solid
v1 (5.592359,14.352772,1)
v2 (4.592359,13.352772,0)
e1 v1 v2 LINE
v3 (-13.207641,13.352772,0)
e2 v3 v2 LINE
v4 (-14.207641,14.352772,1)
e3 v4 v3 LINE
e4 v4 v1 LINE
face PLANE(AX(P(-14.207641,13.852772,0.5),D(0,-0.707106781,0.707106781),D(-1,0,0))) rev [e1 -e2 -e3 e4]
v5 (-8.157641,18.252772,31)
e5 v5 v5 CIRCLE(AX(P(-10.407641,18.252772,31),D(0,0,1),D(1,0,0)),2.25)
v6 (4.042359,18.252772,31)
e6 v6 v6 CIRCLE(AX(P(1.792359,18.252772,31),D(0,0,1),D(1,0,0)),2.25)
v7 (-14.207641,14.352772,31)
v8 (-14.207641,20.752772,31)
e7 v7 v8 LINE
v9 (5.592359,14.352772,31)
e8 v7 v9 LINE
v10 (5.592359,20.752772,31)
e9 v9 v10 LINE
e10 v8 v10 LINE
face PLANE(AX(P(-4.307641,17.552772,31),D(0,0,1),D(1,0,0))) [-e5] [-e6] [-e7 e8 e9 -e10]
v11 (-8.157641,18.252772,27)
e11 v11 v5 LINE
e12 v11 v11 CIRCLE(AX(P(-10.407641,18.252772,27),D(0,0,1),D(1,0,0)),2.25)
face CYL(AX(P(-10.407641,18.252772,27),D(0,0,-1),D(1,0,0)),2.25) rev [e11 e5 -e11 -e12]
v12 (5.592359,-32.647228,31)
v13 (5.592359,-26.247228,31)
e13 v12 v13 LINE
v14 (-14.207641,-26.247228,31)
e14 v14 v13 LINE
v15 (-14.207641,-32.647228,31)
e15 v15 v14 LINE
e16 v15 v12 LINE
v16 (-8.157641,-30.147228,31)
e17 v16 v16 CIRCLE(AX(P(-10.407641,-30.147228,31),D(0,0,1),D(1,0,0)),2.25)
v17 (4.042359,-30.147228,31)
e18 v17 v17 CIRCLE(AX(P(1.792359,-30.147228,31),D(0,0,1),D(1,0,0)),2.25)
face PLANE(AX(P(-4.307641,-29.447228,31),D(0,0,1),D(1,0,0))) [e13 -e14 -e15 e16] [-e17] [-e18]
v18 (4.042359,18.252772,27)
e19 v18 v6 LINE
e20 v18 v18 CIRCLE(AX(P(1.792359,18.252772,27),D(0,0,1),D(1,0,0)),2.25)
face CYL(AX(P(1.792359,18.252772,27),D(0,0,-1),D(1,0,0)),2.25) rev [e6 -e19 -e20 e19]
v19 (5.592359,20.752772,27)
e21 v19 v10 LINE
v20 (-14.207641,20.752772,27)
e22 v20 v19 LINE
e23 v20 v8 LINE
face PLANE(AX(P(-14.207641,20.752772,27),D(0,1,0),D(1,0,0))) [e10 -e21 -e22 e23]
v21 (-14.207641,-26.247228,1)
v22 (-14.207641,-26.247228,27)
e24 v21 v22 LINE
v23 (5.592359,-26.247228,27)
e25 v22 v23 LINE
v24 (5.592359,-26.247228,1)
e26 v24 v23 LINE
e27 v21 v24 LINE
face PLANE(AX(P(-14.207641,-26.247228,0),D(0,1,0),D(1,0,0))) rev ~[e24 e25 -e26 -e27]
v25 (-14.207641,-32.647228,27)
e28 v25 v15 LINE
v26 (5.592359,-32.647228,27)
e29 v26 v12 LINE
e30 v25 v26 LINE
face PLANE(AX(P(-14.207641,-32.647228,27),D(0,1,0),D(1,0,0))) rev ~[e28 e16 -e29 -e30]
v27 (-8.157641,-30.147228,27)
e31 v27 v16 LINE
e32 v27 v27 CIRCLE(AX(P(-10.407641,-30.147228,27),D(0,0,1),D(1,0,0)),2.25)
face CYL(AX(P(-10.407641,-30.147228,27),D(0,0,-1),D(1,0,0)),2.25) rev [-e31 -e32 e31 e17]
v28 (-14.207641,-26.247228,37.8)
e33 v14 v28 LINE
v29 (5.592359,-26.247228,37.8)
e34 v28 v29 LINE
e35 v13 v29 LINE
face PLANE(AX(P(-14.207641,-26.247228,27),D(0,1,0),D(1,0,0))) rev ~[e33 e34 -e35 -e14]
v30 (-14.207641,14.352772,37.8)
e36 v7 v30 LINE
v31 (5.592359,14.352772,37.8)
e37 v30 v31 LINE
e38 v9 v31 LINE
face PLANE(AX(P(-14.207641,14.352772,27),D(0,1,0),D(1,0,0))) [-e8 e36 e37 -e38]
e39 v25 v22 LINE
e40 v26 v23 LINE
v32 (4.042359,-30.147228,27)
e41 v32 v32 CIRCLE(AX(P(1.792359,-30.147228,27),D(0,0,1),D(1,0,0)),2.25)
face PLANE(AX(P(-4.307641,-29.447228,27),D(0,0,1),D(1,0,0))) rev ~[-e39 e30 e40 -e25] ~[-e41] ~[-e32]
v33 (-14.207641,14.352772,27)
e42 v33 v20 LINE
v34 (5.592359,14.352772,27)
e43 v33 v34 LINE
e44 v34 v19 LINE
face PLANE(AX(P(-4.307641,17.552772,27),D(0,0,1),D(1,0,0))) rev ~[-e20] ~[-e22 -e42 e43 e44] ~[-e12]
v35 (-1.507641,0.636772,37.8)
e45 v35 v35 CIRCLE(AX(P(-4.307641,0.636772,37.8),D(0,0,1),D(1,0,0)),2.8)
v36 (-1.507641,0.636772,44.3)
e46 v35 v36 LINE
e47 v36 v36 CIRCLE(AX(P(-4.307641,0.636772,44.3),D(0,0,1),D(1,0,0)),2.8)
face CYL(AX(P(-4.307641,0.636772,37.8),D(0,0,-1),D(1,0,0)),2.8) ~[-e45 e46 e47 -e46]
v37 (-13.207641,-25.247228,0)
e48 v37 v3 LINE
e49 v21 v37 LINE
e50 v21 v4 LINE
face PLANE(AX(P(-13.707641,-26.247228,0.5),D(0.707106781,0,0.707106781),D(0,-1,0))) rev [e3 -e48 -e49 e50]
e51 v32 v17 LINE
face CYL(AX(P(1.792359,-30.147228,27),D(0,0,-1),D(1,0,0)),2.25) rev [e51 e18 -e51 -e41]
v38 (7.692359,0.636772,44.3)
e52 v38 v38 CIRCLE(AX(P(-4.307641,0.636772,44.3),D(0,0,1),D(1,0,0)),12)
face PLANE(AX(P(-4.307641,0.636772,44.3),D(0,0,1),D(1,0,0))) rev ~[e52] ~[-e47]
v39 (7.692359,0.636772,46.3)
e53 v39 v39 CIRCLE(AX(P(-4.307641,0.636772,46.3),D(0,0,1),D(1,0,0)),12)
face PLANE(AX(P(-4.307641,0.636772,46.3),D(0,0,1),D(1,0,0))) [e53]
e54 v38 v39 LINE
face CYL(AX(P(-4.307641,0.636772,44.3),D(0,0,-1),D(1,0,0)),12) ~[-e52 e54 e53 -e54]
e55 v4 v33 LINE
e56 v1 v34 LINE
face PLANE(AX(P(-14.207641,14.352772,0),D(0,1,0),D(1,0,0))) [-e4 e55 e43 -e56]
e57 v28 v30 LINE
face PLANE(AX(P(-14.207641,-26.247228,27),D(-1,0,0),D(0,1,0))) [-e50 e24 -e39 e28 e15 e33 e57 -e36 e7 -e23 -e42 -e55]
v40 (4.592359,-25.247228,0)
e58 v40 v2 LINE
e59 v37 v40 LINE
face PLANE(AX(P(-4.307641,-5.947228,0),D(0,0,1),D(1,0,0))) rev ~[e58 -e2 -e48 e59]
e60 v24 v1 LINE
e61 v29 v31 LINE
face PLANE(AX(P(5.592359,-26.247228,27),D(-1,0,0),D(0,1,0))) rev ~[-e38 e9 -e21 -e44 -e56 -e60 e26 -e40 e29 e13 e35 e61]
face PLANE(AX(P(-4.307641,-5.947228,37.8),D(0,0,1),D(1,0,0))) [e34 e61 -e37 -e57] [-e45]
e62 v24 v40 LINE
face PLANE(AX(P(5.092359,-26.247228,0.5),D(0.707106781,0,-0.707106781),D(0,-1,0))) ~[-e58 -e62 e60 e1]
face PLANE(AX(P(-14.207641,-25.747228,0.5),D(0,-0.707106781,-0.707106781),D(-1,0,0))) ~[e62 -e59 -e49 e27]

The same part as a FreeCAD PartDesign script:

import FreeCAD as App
import Part
import Sketcher
from FreeCAD import Vector


def edges_at(feature, points):
    """Names of the edges that pass closest to the given points."""
    edges = feature.Shape.Edges
    near = lambda p: min(range(len(edges)), key=lambda i: edges[i].distToShape(Part.Vertex(*p))[0])
    return sorted({f"Edge{near(p) + 1}" for p in points})


def add_polygon(sketch, points):
    """Adds a closed chain of lines whose ends are joined by coincident constraints."""
    first, n = sketch.GeometryCount, len(points)
    for a, b in zip(points, points[1:] + points[:1]):
        sketch.addGeometry(Part.LineSegment(App.Vector(*a, 0), App.Vector(*b, 0)), False)
    for i in range(n):
        sketch.addConstraint(Sketcher.Constraint("Coincident", first + i, 2, first + (i + 1) % n, 1))

doc = App.newDocument("Part")
params = doc.addObject("Spreadsheet::Sheet", "Params")
for row, (alias, value) in enumerate([
    ("sketch1_width", "19.8 mm"),
    ("sketch1_height", "40.6 mm"),
    ("pad1_length", "27 mm"),
    ("sketch2_diameter", "4.5 mm"),
    ("sketch2_width", "19.8 mm"),
    ("sketch2_height", "6.4 mm"),
    ("pad2_length", "4 mm"),
    ("sketch3_width", "19.8 mm"),
    ("sketch3_height", "40.6 mm"),
    ("pad3_length", "10.8 mm"),
    ("chamfer_size", "1 mm"),
    ("sketch4_diameter", "5.6 mm"),
    ("pad4_length", "6.5 mm"),
    ("sketch5_diameter", "24 mm"),
    ("pad5_length", "2 mm"),
], start=1):
    params.set(f"A{row}", alias)
    params.set(f"B{row}", "=" + value)
    params.setAlias(f"B{row}", alias)

body = doc.addObject("PartDesign::Body", "Body")
body.AllowCompound = True

sketch1 = body.newObject("Sketcher::SketchObject", "Sketch")
sketch1.AttachmentSupport = (doc.getObject("XY_Plane"), [""])
sketch1.MapMode = "FlatFace"
add_polygon(sketch1, [(-14.207641, 14.352772), (-14.207641, -26.247228), (5.592359, -26.247228), (5.592359, 14.352772)])
sketch1.addConstraint([
    Sketcher.Constraint("Vertical", 0),
    Sketcher.Constraint("Horizontal", 1),
    Sketcher.Constraint("Vertical", 2),
    Sketcher.Constraint("Horizontal", 3),
    Sketcher.Constraint("DistanceX", 1, 1, 1, 2, 19.8),
    Sketcher.Constraint("DistanceY", 0, 2, 0, 1, 40.6),
    Sketcher.Constraint("DistanceX", 0, 2, -1, 1, 14.207641),
    Sketcher.Constraint("DistanceY", 0, 2, -1, 1, 26.247228),
])
sketch1.setExpression("Constraints[8]", "Params.sketch1_width")
sketch1.setExpression("Constraints[9]", "Params.sketch1_height")
pad1 = body.newObject("PartDesign::Pad", "Pad")
pad1.Profile = sketch1
pad1.setExpression("Length", "Params.pad1_length")

sketch2 = body.newObject("Sketcher::SketchObject", "Sketch001")
sketch2.AttachmentSupport = (doc.getObject("XY_Plane"), [""])
sketch2.MapMode = "FlatFace"
sketch2.AttachmentOffset = App.Placement(Vector(0, 0, 27), App.Rotation())
add_polygon(sketch2, [(-14.207641, 20.752772), (-14.207641, 14.352772), (5.592359, 14.352772), (5.592359, 20.752772)])
sketch2.addGeometry(Part.Circle(Vector(-10.407641, 18.252772, 0), Vector(0, 0, 1), 2.25), False)
sketch2.addGeometry(Part.Circle(Vector(1.792359, 18.252772, 0), Vector(0, 0, 1), 2.25), False)
add_polygon(sketch2, [(-14.207641, -26.247228), (-14.207641, -32.647228), (5.592359, -32.647228), (5.592359, -26.247228)])
sketch2.addGeometry(Part.Circle(Vector(-10.407641, -30.147228, 0), Vector(0, 0, 1), 2.25), False)
sketch2.addGeometry(Part.Circle(Vector(1.792359, -30.147228, 0), Vector(0, 0, 1), 2.25), False)
sketch2.addConstraint([
    Sketcher.Constraint("Vertical", 0),
    Sketcher.Constraint("Horizontal", 1),
    Sketcher.Constraint("Vertical", 2),
    Sketcher.Constraint("Horizontal", 3),
    Sketcher.Constraint("Vertical", 6),
    Sketcher.Constraint("Horizontal", 7),
    Sketcher.Constraint("Vertical", 8),
    Sketcher.Constraint("Horizontal", 9),
    Sketcher.Constraint("Equal", 4, 5),
    Sketcher.Constraint("Equal", 5, 10),
    Sketcher.Constraint("Equal", 10, 11),
    Sketcher.Constraint("Horizontal", 4, 3, 5, 3),
    Sketcher.Constraint("Horizontal", 10, 3, 11, 3),
    Sketcher.Constraint("Vertical", 4, 3, 10, 3),
    Sketcher.Constraint("Vertical", 5, 3, 11, 3),
    Sketcher.Constraint("Vertical", 3, 2, 6, 2),
    Sketcher.Constraint("Vertical", 2, 2, 7, 2),
    Sketcher.Constraint("Equal", 2, 6),
    Sketcher.Constraint("Diameter", 4, 4.5),
    Sketcher.Constraint("DistanceX", 1, 1, 1, 2, 19.8),
    Sketcher.Constraint("DistanceY", 0, 2, 0, 1, 6.4),
    Sketcher.Constraint("DistanceX", 0, 2, 5, 3, 16.0),
    Sketcher.Constraint("DistanceX", 4, 3, 1, 2, 16.0),
    Sketcher.Constraint("DistanceY", 6, 2, 0, 2, 47.0),
    Sketcher.Constraint("DistanceY", 10, 3, 4, 3, 48.4),
    Sketcher.Constraint("DistanceY", 0, 2, 4, 3, 3.9),
    Sketcher.Constraint("DistanceX", 4, 3, -1, 1, 10.407641),
    Sketcher.Constraint("DistanceY", -1, 1, 4, 3, 18.252772),
])
sketch2.setExpression("Constraints[26]", "Params.sketch2_diameter")
sketch2.setExpression("Constraints[27]", "Params.sketch2_width")
sketch2.setExpression("Constraints[28]", "Params.sketch2_height")
pad2 = body.newObject("PartDesign::Pad", "Pad001")
pad2.Profile = sketch2
pad2.setExpression("Length", "Params.pad2_length")

sketch3 = body.newObject("Sketcher::SketchObject", "Sketch002")
sketch3.AttachmentSupport = (doc.getObject("XY_Plane"), [""])
sketch3.MapMode = "FlatFace"
sketch3.AttachmentOffset = App.Placement(Vector(0, 0, 27), App.Rotation())
add_polygon(sketch3, [(-14.207641, 14.352772), (-14.207641, -26.247228), (5.592359, -26.247228), (5.592359, 14.352772)])
sketch3.addConstraint([
    Sketcher.Constraint("Vertical", 0),
    Sketcher.Constraint("Horizontal", 1),
    Sketcher.Constraint("Vertical", 2),
    Sketcher.Constraint("Horizontal", 3),
    Sketcher.Constraint("DistanceX", 1, 1, 1, 2, 19.8),
    Sketcher.Constraint("DistanceY", 0, 2, 0, 1, 40.6),
    Sketcher.Constraint("DistanceX", 0, 2, -1, 1, 14.207641),
    Sketcher.Constraint("DistanceY", 0, 2, -1, 1, 26.247228),
])
sketch3.setExpression("Constraints[8]", "Params.sketch3_width")
sketch3.setExpression("Constraints[9]", "Params.sketch3_height")
pad3 = body.newObject("PartDesign::Pad", "Pad002")
pad3.Profile = sketch3
pad3.setExpression("Length", "Params.pad3_length")
doc.recompute()

chamfer = body.newObject("PartDesign::Chamfer", "Chamfer")
chamfer.Base = (pad3, edges_at(pad3, [
    (-14.208, -5.947, 0),
    (-4.308, 14.353, 0),
    (5.592, -5.947, 0),
    (-4.308, -26.247, 0),
]))
chamfer.setExpression("Size", "Params.chamfer_size")

sketch4 = body.newObject("Sketcher::SketchObject", "Sketch003")
sketch4.AttachmentSupport = (doc.getObject("XY_Plane"), [""])
sketch4.MapMode = "FlatFace"
sketch4.AttachmentOffset = App.Placement(Vector(0, 0, 37.8), App.Rotation())
sketch4.addGeometry(Part.Circle(Vector(-4.307641, 0.636772, 0), Vector(0, 0, 1), 2.8), False)
sketch4.addConstraint([
    Sketcher.Constraint("Diameter", 0, 5.6),
    Sketcher.Constraint("DistanceX", 0, 3, -1, 1, 4.307641),
    Sketcher.Constraint("DistanceY", -1, 1, 0, 3, 0.636772),
])
sketch4.setExpression("Constraints[0]", "Params.sketch4_diameter")
pad4 = body.newObject("PartDesign::Pad", "Pad003")
pad4.Profile = sketch4
pad4.setExpression("Length", "Params.pad4_length")

sketch5 = body.newObject("Sketcher::SketchObject", "Sketch004")
sketch5.AttachmentSupport = (doc.getObject("XY_Plane"), [""])
sketch5.MapMode = "FlatFace"
sketch5.AttachmentOffset = App.Placement(Vector(0, 0, 44.3), App.Rotation())
sketch5.addGeometry(Part.Circle(Vector(-4.307641, 0.636772, 0), Vector(0, 0, 1), 12), False)
sketch5.addConstraint([
    Sketcher.Constraint("Diameter", 0, 24.0),
    Sketcher.Constraint("DistanceX", 0, 3, -1, 1, 4.307641),
    Sketcher.Constraint("DistanceY", -1, 1, 0, 3, 0.636772),
])
sketch5.setExpression("Constraints[0]", "Params.sketch5_diameter")
pad5 = body.newObject("PartDesign::Pad", "Pad004")
pad5.Profile = sketch5
pad5.setExpression("Length", "Params.pad5_length")

doc.recompute()
